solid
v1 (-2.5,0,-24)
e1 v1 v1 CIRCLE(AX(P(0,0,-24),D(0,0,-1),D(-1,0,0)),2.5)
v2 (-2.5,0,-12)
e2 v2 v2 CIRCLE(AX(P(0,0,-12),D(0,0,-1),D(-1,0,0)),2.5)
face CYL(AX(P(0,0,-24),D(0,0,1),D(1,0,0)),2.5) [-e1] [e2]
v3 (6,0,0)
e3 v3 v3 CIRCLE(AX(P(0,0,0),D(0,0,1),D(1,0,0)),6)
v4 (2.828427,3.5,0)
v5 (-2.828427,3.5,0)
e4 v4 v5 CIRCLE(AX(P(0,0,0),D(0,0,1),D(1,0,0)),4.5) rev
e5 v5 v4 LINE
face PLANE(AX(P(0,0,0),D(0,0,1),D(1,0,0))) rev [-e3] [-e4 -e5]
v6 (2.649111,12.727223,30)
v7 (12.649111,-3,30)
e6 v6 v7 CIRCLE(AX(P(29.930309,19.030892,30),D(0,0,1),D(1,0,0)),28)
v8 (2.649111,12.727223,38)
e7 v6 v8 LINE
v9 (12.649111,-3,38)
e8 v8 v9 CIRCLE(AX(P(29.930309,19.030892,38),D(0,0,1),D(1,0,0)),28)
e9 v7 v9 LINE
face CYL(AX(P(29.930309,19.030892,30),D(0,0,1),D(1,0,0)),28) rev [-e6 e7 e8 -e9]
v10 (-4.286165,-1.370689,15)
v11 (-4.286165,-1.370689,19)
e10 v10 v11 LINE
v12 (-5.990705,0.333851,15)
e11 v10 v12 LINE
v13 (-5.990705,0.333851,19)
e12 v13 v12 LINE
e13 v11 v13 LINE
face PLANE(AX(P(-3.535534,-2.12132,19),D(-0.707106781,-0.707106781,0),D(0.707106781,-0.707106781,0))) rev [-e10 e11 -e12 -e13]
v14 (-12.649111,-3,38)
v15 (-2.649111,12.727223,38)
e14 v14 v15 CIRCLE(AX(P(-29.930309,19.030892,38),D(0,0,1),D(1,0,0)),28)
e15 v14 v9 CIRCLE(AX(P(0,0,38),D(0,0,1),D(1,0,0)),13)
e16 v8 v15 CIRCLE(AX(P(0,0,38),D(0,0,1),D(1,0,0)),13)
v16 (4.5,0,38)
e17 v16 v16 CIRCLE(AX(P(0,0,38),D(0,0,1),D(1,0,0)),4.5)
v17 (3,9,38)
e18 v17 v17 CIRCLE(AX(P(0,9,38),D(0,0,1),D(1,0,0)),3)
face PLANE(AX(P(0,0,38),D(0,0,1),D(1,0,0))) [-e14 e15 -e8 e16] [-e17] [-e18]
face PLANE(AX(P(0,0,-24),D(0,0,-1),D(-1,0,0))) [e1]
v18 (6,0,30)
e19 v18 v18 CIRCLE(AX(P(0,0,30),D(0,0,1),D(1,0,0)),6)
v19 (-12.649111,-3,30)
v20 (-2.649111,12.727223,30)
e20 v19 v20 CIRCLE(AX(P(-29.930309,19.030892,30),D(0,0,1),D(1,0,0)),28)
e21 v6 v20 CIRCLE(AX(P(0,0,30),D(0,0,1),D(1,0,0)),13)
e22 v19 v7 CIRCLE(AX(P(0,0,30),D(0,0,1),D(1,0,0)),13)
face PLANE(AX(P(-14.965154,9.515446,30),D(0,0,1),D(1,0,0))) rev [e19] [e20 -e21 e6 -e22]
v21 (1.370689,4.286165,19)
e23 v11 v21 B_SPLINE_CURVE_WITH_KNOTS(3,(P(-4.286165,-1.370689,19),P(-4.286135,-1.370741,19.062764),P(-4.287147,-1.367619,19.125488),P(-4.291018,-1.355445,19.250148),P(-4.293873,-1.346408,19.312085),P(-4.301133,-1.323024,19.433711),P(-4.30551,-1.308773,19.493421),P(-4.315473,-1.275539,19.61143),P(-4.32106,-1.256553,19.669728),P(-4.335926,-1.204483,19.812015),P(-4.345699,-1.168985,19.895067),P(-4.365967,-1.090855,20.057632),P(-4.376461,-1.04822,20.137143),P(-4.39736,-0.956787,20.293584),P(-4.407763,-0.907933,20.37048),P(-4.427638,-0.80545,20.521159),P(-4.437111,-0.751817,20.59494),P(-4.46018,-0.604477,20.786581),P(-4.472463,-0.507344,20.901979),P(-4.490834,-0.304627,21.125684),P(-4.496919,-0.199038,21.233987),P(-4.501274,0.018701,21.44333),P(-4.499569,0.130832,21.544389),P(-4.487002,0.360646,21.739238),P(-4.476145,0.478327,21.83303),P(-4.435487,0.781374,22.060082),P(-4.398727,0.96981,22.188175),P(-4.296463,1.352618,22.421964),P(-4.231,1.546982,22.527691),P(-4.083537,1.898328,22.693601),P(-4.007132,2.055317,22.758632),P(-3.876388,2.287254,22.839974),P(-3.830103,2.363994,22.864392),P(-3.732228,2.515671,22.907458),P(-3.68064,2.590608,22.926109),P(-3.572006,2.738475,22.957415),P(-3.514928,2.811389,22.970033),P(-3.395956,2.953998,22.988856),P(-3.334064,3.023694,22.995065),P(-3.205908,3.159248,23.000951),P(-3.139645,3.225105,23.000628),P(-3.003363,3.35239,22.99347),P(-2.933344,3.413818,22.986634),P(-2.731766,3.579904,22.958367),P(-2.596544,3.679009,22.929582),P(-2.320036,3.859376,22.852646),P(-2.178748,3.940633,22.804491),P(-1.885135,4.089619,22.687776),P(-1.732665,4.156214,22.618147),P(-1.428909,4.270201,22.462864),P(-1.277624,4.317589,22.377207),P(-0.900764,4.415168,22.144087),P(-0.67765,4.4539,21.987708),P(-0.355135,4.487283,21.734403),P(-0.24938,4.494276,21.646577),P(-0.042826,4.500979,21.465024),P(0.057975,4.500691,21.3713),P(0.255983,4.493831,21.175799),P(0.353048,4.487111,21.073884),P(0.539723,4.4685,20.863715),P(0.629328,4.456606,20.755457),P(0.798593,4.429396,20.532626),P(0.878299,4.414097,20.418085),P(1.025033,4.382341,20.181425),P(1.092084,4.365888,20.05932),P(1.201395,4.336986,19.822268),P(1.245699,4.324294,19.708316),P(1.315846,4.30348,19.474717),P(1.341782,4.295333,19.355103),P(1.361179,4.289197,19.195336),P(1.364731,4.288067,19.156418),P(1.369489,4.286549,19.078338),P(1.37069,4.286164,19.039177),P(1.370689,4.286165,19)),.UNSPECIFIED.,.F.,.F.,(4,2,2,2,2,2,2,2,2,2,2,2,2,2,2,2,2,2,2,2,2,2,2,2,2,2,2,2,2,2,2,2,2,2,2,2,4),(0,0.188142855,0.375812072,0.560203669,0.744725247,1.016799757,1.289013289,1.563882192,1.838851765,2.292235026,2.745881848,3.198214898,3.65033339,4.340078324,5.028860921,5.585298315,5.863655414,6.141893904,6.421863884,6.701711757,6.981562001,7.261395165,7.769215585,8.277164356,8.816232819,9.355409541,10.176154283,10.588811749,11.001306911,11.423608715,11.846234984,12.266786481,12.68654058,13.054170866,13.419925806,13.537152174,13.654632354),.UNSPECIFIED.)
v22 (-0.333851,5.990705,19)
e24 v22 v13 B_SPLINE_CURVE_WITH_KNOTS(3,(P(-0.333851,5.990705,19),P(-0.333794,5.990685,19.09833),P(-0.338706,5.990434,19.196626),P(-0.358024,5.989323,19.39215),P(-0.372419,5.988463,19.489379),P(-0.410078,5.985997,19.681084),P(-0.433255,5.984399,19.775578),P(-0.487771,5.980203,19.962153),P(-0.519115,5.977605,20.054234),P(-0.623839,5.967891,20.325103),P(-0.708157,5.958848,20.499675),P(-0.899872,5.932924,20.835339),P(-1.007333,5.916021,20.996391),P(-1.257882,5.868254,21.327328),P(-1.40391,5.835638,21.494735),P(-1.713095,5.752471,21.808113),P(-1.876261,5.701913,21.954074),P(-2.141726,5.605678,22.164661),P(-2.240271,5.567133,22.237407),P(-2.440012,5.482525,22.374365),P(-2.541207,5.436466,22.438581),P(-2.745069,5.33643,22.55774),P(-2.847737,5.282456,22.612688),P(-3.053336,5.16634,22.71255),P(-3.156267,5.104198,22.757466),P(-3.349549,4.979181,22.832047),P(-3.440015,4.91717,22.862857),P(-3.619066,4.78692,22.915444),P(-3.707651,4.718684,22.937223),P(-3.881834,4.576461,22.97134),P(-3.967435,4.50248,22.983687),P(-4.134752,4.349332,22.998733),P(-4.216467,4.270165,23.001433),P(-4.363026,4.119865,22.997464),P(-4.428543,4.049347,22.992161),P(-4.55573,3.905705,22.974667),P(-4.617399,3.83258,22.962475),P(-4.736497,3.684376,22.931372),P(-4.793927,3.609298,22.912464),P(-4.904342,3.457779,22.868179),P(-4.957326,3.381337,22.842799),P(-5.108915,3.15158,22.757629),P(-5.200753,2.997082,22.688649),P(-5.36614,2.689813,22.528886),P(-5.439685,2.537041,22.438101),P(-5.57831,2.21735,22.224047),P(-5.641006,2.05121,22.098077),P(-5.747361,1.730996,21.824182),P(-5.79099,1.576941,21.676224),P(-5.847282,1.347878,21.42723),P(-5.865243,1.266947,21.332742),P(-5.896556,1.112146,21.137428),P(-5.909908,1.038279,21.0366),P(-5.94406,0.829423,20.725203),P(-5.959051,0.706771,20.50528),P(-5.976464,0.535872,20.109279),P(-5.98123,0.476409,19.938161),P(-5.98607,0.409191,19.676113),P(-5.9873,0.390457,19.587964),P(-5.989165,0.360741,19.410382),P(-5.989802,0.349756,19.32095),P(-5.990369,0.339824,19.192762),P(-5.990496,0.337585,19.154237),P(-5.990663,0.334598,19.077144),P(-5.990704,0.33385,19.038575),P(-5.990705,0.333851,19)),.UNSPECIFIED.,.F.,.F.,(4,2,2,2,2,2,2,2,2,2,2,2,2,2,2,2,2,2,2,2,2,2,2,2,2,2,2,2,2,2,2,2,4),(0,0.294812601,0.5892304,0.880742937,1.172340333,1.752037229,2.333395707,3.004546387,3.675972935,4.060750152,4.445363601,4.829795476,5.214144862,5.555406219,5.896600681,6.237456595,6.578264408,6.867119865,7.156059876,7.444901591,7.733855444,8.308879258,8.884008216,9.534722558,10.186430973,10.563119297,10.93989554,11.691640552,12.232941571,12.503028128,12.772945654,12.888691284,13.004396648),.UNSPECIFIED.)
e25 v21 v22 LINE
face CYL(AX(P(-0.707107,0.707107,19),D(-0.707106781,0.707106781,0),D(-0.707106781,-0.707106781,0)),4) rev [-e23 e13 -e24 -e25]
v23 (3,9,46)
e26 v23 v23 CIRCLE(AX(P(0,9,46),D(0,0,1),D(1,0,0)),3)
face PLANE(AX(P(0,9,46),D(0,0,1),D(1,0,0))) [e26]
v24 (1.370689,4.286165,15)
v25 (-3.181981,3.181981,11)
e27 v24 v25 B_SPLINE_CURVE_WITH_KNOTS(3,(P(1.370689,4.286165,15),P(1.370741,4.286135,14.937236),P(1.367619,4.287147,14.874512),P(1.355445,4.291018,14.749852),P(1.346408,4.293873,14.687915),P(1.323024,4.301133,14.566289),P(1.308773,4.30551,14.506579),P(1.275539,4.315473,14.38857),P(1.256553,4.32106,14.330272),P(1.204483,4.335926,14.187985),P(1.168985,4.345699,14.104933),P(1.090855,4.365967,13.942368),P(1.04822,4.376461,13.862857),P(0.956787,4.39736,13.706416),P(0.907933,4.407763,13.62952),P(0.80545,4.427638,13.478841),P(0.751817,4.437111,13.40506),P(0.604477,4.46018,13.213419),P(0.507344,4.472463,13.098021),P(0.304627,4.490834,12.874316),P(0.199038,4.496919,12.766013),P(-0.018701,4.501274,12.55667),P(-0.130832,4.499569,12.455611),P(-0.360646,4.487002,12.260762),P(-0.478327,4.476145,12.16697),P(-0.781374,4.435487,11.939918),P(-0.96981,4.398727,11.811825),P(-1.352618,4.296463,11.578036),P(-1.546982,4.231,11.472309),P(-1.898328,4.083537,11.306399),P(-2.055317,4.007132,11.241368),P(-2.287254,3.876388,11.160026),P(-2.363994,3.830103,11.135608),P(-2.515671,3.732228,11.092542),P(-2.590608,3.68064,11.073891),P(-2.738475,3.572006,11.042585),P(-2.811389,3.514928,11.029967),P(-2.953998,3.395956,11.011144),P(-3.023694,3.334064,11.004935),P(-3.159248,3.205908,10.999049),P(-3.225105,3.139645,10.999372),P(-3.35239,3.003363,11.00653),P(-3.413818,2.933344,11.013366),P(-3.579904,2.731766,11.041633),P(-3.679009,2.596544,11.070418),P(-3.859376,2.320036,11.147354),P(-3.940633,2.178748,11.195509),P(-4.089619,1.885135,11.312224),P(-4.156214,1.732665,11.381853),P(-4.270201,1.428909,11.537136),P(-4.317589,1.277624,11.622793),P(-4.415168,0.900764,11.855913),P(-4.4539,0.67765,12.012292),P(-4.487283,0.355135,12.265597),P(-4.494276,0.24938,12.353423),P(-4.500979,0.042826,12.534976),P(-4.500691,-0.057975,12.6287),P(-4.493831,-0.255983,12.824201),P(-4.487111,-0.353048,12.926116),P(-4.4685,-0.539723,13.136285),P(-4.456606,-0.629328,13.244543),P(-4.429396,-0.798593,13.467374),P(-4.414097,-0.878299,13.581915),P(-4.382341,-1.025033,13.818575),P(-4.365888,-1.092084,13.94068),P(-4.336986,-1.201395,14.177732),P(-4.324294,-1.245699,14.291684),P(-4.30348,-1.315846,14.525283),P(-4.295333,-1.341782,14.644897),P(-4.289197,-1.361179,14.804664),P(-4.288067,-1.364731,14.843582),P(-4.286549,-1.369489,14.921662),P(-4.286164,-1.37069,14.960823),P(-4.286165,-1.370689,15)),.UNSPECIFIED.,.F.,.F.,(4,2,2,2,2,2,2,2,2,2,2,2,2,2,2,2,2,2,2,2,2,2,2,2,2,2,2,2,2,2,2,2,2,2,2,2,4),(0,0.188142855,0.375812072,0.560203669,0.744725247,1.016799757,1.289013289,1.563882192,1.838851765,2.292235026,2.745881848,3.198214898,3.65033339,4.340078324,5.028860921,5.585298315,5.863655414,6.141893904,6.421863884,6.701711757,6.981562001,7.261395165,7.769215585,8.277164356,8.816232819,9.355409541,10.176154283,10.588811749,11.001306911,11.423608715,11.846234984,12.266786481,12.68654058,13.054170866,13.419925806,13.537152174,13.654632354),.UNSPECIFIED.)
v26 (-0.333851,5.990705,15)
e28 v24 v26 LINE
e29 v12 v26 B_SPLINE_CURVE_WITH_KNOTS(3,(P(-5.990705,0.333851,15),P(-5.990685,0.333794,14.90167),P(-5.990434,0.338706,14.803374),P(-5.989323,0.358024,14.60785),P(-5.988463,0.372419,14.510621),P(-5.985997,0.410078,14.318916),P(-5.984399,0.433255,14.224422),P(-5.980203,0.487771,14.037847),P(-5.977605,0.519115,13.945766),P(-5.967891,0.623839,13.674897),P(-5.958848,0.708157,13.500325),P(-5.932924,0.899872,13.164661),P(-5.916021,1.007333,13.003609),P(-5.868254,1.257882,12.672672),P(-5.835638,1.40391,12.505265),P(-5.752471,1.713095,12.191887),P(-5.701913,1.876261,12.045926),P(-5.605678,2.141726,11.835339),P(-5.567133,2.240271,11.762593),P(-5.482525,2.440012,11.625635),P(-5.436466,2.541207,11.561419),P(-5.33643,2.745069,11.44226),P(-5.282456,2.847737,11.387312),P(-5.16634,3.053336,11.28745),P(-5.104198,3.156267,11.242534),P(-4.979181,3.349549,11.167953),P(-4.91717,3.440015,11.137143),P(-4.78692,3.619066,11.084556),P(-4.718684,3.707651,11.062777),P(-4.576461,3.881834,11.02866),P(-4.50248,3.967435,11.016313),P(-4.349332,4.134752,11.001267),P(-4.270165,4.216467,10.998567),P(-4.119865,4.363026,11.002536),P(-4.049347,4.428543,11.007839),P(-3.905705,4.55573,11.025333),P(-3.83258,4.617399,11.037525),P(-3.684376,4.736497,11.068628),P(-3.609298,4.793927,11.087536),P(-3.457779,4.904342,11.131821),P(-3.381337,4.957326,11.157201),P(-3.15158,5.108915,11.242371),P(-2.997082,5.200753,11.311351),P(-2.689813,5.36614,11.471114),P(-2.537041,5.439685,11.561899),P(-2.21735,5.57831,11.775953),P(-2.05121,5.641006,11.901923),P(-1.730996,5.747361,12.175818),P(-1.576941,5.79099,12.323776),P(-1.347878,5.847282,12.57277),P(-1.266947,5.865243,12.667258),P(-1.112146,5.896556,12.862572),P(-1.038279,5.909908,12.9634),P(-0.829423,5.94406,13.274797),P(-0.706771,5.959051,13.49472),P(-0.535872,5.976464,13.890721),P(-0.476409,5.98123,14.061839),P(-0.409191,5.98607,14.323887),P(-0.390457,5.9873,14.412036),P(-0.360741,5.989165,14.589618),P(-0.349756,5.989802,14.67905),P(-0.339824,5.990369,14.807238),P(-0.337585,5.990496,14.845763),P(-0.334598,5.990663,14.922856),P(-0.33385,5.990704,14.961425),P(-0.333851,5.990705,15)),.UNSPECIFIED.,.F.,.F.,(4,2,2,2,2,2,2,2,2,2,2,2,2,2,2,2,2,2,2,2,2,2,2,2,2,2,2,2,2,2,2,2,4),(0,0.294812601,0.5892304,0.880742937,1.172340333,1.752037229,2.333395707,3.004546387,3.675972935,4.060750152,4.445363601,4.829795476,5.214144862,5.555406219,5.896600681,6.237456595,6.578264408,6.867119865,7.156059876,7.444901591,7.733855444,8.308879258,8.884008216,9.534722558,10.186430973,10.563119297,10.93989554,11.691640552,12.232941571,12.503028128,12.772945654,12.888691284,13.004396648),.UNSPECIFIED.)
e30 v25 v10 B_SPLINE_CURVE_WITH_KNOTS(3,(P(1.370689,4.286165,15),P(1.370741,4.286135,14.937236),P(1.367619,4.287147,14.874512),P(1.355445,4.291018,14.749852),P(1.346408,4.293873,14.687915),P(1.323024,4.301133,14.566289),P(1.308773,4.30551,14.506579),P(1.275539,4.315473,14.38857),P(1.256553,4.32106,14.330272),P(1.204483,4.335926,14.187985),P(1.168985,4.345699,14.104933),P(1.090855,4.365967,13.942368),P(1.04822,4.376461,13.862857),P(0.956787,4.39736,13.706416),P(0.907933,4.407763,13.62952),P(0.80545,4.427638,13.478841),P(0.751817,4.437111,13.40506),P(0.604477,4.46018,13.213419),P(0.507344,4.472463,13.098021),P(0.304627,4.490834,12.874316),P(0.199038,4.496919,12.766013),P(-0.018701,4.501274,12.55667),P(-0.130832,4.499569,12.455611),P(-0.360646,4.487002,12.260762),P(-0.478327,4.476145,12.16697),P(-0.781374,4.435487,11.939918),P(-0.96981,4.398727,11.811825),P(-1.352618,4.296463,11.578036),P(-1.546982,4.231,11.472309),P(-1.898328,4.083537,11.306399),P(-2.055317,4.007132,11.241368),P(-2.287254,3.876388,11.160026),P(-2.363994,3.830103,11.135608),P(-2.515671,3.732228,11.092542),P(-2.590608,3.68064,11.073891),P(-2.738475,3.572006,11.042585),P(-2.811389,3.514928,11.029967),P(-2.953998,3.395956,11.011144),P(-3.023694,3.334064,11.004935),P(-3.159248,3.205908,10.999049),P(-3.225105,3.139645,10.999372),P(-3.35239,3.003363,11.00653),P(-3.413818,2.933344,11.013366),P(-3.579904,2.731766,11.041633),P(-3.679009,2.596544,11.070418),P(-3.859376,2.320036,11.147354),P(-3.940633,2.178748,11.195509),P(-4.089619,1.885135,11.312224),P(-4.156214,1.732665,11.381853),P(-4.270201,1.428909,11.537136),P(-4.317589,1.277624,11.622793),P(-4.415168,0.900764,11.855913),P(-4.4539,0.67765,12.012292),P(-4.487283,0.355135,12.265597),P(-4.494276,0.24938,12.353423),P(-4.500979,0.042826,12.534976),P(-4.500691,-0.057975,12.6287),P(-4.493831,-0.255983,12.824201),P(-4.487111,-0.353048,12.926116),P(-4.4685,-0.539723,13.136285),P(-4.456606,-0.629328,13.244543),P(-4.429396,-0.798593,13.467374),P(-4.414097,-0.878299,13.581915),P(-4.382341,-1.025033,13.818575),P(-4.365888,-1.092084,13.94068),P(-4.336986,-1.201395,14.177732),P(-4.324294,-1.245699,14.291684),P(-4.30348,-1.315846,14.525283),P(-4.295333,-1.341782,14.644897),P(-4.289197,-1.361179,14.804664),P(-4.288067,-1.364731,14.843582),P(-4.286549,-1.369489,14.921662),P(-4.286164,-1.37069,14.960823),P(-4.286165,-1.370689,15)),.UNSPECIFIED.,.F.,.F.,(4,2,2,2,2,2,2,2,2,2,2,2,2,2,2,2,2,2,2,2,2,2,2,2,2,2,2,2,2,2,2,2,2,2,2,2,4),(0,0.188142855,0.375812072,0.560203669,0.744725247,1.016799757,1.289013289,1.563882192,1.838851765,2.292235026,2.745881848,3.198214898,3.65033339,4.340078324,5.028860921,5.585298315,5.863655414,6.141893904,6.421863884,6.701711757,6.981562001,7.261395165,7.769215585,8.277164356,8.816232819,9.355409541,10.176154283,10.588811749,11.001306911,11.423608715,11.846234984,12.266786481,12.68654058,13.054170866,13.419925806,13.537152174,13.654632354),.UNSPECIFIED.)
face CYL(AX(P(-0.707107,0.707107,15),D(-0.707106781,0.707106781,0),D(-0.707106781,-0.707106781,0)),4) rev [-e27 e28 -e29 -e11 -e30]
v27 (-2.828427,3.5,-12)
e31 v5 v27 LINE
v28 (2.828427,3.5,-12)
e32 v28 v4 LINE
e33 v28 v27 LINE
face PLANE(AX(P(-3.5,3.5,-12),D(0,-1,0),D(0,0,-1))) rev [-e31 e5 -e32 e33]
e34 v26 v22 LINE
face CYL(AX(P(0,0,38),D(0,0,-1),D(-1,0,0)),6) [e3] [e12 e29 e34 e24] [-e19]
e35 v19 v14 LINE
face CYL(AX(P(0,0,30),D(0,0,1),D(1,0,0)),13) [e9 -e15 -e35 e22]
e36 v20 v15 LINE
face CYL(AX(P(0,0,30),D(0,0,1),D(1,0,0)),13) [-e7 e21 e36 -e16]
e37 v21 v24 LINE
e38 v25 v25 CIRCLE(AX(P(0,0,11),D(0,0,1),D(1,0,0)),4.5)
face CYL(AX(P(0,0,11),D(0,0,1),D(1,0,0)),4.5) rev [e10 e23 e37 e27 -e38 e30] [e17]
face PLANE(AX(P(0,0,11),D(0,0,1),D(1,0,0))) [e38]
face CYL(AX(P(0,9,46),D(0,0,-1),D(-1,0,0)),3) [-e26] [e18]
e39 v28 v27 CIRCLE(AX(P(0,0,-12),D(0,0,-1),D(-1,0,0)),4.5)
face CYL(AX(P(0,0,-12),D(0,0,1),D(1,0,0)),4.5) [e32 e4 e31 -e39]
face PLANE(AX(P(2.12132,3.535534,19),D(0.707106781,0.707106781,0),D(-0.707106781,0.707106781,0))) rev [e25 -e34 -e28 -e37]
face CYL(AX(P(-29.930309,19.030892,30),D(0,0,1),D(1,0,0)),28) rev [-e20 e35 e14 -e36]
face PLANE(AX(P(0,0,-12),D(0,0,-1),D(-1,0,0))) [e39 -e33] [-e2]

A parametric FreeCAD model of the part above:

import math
import FreeCAD as App
import Part
import Sketcher
from FreeCAD import Vector


def add_polygon(sketch, points):
    """Adds a closed chain of lines whose ends are joined by coincident constraints."""
    first, n = sketch.GeometryCount, len(points)
    for a, b in zip(points, points[1:] + points[:1]):
        sketch.addGeometry(Part.LineSegment(App.Vector(*a, 0), App.Vector(*b, 0)), False)
    for i in range(n):
        sketch.addConstraint(Sketcher.Constraint("Coincident", first + i, 2, first + (i + 1) % n, 1))

doc = App.newDocument("Part")
body = doc.addObject("PartDesign::Body", "Body")

# Sketch on XY plane
sketch1 = body.newObject("Sketcher::SketchObject", "Sketch")
sketch1.AttachmentSupport = (doc.getObject("XY_Plane"), [""])
sketch1.MapMode = "FlatFace"
sketch1.addGeometry(Part.Circle(Vector(0, 0, 0), Vector(0, 0, 1), 6), False)
sketch1.addConstraint(Sketcher.Constraint("Coincident", 0, 3, -1, 1))
sketch1.addConstraint(Sketcher.Constraint("Diameter", 0, 12.0))
pad1 = body.newObject("PartDesign::Pad", "Pad")
pad1.Profile = sketch1
pad1.Length = 38

# Sketch on XY plane
sketch2 = body.newObject("Sketcher::SketchObject", "Sketch001")
sketch2.AttachmentSupport = (doc.getObject("XY_Plane"), [""])
sketch2.MapMode = "FlatFace"
sketch2.addGeometry(Part.Circle(Vector(0, 0, 0), Vector(0, 0, 1), 4.5), False)
sketch2.addConstraint(Sketcher.Constraint("Coincident", 0, 3, -1, 1))
sketch2.addConstraint(Sketcher.Constraint("Diameter", 0, 9.0))
pad2 = body.newObject("PartDesign::Pad", "Pad001")
pad2.Profile = sketch2
pad2.Length = 12
pad2.Reversed = True

# Sketch on XY plane
sketch3 = body.newObject("Sketcher::SketchObject", "Sketch002")
sketch3.AttachmentSupport = (doc.getObject("XY_Plane"), [""])
sketch3.MapMode = "FlatFace"
sketch3.AttachmentOffset = App.Placement(Vector(0, 0, 38), App.Rotation())
sketch3.addGeometry(Part.ArcOfCircle(Part.Circle(Vector(0, 0, 0), Vector(0, 0, 1), 13), math.radians(-166.657636), math.radians(-13.342364)), False)
sketch3.addGeometry(Part.ArcOfCircle(Part.Circle(Vector(29.930309, 19.030892, 0), Vector(0, 0, 1), 28), math.radians(-166.989417), math.radians(-128.110905)), False)
sketch3.addGeometry(Part.ArcOfCircle(Part.Circle(Vector(0, 0, 0), Vector(0, 0, 1), 13), math.radians(78.242041), math.radians(101.757959)), False)
sketch3.addGeometry(Part.ArcOfCircle(Part.Circle(Vector(-29.930309, 19.030892, 0), Vector(0, 0, 1), 28), math.radians(-51.889095), math.radians(-13.010583)), False)
sketch3.addConstraint(Sketcher.Constraint("Coincident", 0, 2, 1, 2))
sketch3.addConstraint(Sketcher.Constraint("Coincident", 1, 1, 2, 1))
sketch3.addConstraint(Sketcher.Constraint("Coincident", 2, 2, 3, 2))
sketch3.addConstraint(Sketcher.Constraint("Coincident", 3, 1, 0, 1))
sketch3.addConstraint(Sketcher.Constraint("Coincident", 0, 3, -1, 1))
sketch3.addConstraint(Sketcher.Constraint("Coincident", 2, 3, -1, 1))
sketch3.addConstraint(Sketcher.Constraint("Equal", 0, 2))
sketch3.addConstraint(Sketcher.Constraint("Equal", 1, 3))
sketch3.addConstraint(Sketcher.Constraint("Symmetric", 1, 3, 3, 3, -2))
sketch3.addConstraint(Sketcher.Constraint("Radius", 0, 13.0))
sketch3.addConstraint(Sketcher.Constraint("Radius", 1, 28.0))
sketch3.addConstraint(Sketcher.Constraint("DistanceY", 0, 2, -1, 1, 3.0))
sketch3.addConstraint(Sketcher.Constraint("DistanceX", 1, 1, 0, 2, 10.0))
pad3 = body.newObject("PartDesign::Pad", "Pad002")
pad3.Profile = sketch3
pad3.Length = 8
pad3.Reversed = True

# Sketch on XY plane
sketch4 = body.newObject("Sketcher::SketchObject", "Sketch003")
sketch4.AttachmentSupport = (doc.getObject("XY_Plane"), [""])
sketch4.MapMode = "FlatFace"
sketch4.AttachmentOffset = App.Placement(Vector(0, 0, 38), App.Rotation())
sketch4.addGeometry(Part.Circle(Vector(0, 9, 0), Vector(0, 0, 1), 3), False)
sketch4.addConstraint(Sketcher.Constraint("PointOnObject", 0, 3, -2))
sketch4.addConstraint(Sketcher.Constraint("Diameter", 0, 6.0))
sketch4.addConstraint(Sketcher.Constraint("DistanceY", -1, 1, 0, 3, 9.0))
pad4 = body.newObject("PartDesign::Pad", "Pad003")
pad4.Profile = sketch4
pad4.Length = 8

# Sketch on XY plane
sketch5 = body.newObject("Sketcher::SketchObject", "Sketch004")
sketch5.AttachmentSupport = (doc.getObject("XY_Plane"), [""])
sketch5.MapMode = "FlatFace"
sketch5.AttachmentOffset = App.Placement(Vector(0, 0, 38), App.Rotation())
sketch5.addGeometry(Part.Circle(Vector(0, 0, 0), Vector(0, 0, 1), 4.5), False)
sketch5.addConstraint(Sketcher.Constraint("Coincident", 0, 3, -1, 1))
sketch5.addConstraint(Sketcher.Constraint("Diameter", 0, 9.0))
pocket1 = body.newObject("PartDesign::Pocket", "Pocket")
pocket1.Profile = sketch5
pocket1.Length = 27

# Sketch on an angled plane
sketch6 = body.newObject("Sketcher::SketchObject", "Sketch005")
sketch6.Placement = App.Placement(Vector(-4.242641, 4.242641, 0), App.Rotation(Vector(0, 0, -1), Vector(-0.707106781, -0.707106781, 0), Vector(-0.707106781, 0.707106781, 0), "ZXY"))
sketch6.addGeometry(Part.LineSegment(Vector(-15, 4, 0), Vector(-19, 4, 0)), False)
sketch6.addGeometry(Part.ArcOfCircle(Part.Circle(Vector(-19, 0, 0), Vector(0, 0, 1), 4), math.radians(90), math.radians(270)), False)
sketch6.addGeometry(Part.LineSegment(Vector(-19, -4, 0), Vector(-15, -4, 0)), False)
sketch6.addGeometry(Part.ArcOfCircle(Part.Circle(Vector(-15, 0, 0), Vector(0, 0, 1), 4), math.radians(-90), math.radians(90)), False)
sketch6.addConstraint(Sketcher.Constraint("Tangent", 0, 2, 1, 1))
sketch6.addConstraint(Sketcher.Constraint("Tangent", 1, 2, 2, 1))
sketch6.addConstraint(Sketcher.Constraint("Tangent", 2, 2, 3, 1))
sketch6.addConstraint(Sketcher.Constraint("Tangent", 3, 2, 0, 1))
sketch6.addConstraint(Sketcher.Constraint("Horizontal", 0))
sketch6.addConstraint(Sketcher.Constraint("Horizontal", 2))
sketch6.addConstraint(Sketcher.Constraint("PointOnObject", 1, 3, -1))
sketch6.addConstraint(Sketcher.Constraint("Radius", 1, 4.0))
sketch6.addConstraint(Sketcher.Constraint("DistanceX", 0, 2, 0, 1, 4.0))
sketch6.addConstraint(Sketcher.Constraint("DistanceX", 1, 3, -1, 1, 19.0))
pocket2 = body.newObject("PartDesign::Pocket", "Pocket001")
pocket2.Profile = sketch6
pocket2.Length = 5

# Sketch on XY plane
sketch7 = body.newObject("Sketcher::SketchObject", "Sketch006")
sketch7.AttachmentSupport = (doc.getObject("XY_Plane"), [""])
sketch7.MapMode = "FlatFace"
sketch7.AttachmentOffset = App.Placement(Vector(0, 0, -12), App.Rotation())
sketch7.addGeometry(Part.Circle(Vector(0, 0, 0), Vector(0, 0, 1), 2.5), False)
sketch7.addConstraint(Sketcher.Constraint("Coincident", 0, 3, -1, 1))
sketch7.addConstraint(Sketcher.Constraint("Diameter", 0, 5.0))
pad5 = body.newObject("PartDesign::Pad", "Pad004")
pad5.Profile = sketch7
pad5.Length = 12
pad5.Reversed = True

# Sketch on YZ plane
sketch8 = body.newObject("Sketcher::SketchObject", "Sketch007")
sketch8.AttachmentSupport = (doc.getObject("YZ_Plane"), [""])
sketch8.MapMode = "FlatFace"
add_polygon(sketch8, [(4.5, 0), (3.5, 0), (3.5, -12), (4.5, -12)])  # lines 0-3
sketch8.addConstraint(Sketcher.Constraint("Horizontal", 0))
sketch8.addConstraint(Sketcher.Constraint("Vertical", 1))
sketch8.addConstraint(Sketcher.Constraint("Horizontal", 2))
sketch8.addConstraint(Sketcher.Constraint("Vertical", 3))
sketch8.addConstraint(Sketcher.Constraint("PointOnObject", 0, 2, -1))
sketch8.addConstraint(Sketcher.Constraint("DistanceX", 0, 2, 0, 1, 1.0))
sketch8.addConstraint(Sketcher.Constraint("DistanceY", 1, 2, 1, 1, 12.0))
sketch8.addConstraint(Sketcher.Constraint("DistanceX", -1, 1, 0, 2, 3.5))
pocket3 = body.newObject("PartDesign::Pocket", "Pocket002")
pocket3.Profile = sketch8
pocket3.Length = 7
pocket3.Midplane = True

doc.recompute()
